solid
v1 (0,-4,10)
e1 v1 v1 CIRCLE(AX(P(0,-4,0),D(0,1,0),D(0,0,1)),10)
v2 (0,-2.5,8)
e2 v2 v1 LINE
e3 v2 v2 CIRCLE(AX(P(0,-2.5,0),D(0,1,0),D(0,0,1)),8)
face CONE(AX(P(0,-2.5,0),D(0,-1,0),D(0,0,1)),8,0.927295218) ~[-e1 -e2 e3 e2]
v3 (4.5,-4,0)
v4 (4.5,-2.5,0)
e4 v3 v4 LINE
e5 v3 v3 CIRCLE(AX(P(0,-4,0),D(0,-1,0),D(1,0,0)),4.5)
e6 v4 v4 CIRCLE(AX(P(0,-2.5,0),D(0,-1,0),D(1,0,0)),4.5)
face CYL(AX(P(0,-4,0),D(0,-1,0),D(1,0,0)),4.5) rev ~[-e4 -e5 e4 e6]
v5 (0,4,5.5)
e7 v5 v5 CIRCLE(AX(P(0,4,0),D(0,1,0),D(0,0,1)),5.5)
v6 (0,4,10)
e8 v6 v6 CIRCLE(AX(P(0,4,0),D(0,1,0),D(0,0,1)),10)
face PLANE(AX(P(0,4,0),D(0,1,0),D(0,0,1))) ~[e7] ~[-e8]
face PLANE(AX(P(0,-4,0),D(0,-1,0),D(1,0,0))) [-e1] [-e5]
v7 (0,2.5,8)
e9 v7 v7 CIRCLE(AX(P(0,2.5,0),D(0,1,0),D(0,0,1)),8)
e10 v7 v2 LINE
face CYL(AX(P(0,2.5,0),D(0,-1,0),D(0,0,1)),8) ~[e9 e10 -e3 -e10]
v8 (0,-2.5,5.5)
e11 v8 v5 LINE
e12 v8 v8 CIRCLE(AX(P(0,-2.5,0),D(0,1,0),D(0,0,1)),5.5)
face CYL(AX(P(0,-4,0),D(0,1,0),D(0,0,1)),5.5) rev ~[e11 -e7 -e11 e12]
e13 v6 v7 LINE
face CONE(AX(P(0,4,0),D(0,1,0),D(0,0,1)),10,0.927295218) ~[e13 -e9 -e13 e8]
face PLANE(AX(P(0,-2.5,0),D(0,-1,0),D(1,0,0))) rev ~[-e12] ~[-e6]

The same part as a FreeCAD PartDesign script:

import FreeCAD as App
import Part
import Sketcher

V = App.Vector

doc = App.newDocument("Part")
body = doc.addObject("PartDesign::Body", "Body")

# Sketch on YZ plane
sketch1 = body.newObject("Sketcher::SketchObject", "Sketch")
sketch1.AttachmentSupport = (doc.getObject("YZ_Plane"), [""])
sketch1.MapMode = "FlatFace"
sketch1.addGeometry([
    Part.LineSegment(V(2.5, 8, 0), V(-2.5, 8, 0)),  # 0
    Part.LineSegment(V(-2.5, 8, 0), V(-4, 10, 0)),  # 1
    Part.LineSegment(V(-4, 10, 0), V(-4, 5.5, 0)),  # 2
    Part.LineSegment(V(-4, 5.5, 0), V(4, 5.5, 0)),  # 3
    Part.LineSegment(V(4, 5.5, 0), V(4, 10, 0)),  # 4
    Part.LineSegment(V(4, 10, 0), V(2.5, 8, 0)),  # 5
], False)
sketch1.addConstraint([
    Sketcher.Constraint("Coincident", 0, 2, 1, 1),
    Sketcher.Constraint("Coincident", 1, 2, 2, 1),
    Sketcher.Constraint("Coincident", 2, 2, 3, 1),
    Sketcher.Constraint("Coincident", 3, 2, 4, 1),
    Sketcher.Constraint("Coincident", 4, 2, 5, 1),
    Sketcher.Constraint("Coincident", 5, 2, 0, 1),
    Sketcher.Constraint("Horizontal", 0),
    Sketcher.Constraint("Vertical", 2),
    Sketcher.Constraint("Horizontal", 3),
    Sketcher.Constraint("Vertical", 4),
    Sketcher.Constraint("Symmetric", 1, 2, 4, 2, -2),
    Sketcher.Constraint("Equal", 1, 5),
    Sketcher.Constraint("DistanceX", 0, 2, 0, 1, 5.0),
    Sketcher.Constraint("DistanceX", 3, 1, 3, 2, 8.0),
    Sketcher.Constraint("DistanceY", 2, 2, 2, 1, 4.5),
    Sketcher.Constraint("DistanceY", -1, 1, 0, 2, 8.0),
    Sketcher.Constraint("DistanceY", -1, 1, 1, 2, 10.0),
])
revolution = body.newObject("PartDesign::Revolution", "Revolution")
revolution.Profile = sketch1
revolution.ReferenceAxis = (sketch1, ["H_Axis"])
revolution.Angle = 360

# Sketch on XZ plane
sketch2 = body.newObject("Sketcher::SketchObject", "Sketch001")
sketch2.AttachmentSupport = (doc.getObject("XZ_Plane"), [""])
sketch2.MapMode = "FlatFace"
sketch2.AttachmentOffset = App.Placement(V(0, 0, 4), App.Rotation())
sketch2.addGeometry([
    Part.Circle(V(0, 0, 0), V(0, 0, 1), 5.5),
    Part.Circle(V(0, 0, 0), V(0, 0, 1), 4.5),
], False)
sketch2.addConstraint([
    Sketcher.Constraint("Coincident", 0, 3, -1, 1),
    Sketcher.Constraint("Coincident", 1, 3, -1, 1),
    Sketcher.Constraint("Diameter", 0, 11.0),
    Sketcher.Constraint("Diameter", 1, 9.0),
])
pad1 = body.newObject("PartDesign::Pad", "Pad")
pad1.Profile = sketch2
pad1.Length = 1.5
pad1.Reversed = True

doc.recompute()
